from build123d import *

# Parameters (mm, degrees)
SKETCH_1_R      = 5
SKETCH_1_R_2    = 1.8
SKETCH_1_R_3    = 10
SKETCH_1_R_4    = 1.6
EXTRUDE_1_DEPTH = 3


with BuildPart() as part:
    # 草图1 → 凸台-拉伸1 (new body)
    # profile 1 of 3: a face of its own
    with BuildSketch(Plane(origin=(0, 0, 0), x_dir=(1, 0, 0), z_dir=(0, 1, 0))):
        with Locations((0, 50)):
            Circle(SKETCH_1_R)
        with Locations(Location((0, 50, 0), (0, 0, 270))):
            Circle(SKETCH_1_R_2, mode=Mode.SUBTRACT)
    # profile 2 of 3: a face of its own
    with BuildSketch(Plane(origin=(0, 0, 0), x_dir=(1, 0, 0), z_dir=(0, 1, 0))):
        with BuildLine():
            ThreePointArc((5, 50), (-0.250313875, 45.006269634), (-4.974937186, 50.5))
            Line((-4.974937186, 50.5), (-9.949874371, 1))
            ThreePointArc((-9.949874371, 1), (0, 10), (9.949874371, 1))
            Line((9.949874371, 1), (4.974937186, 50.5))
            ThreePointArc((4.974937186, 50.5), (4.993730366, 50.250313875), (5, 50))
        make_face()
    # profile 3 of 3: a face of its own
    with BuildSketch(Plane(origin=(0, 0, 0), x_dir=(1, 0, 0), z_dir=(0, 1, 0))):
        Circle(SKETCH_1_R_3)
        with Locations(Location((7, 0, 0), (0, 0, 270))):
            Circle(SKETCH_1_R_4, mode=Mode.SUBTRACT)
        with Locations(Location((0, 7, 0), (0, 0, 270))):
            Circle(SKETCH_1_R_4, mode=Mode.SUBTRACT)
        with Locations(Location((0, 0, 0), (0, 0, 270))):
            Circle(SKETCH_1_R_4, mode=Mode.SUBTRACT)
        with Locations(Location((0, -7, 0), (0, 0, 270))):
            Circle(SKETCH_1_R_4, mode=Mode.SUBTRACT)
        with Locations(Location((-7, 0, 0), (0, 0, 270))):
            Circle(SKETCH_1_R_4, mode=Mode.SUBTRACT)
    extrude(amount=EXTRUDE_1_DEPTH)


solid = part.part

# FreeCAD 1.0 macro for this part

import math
import FreeCAD as App
import Part
import Sketcher
Q = App.Units.Quantity

doc = App.newDocument("Part")
body = doc.addObject("PartDesign::Body", "Body")

# Sketch on XZ plane
sketch1 = body.newObject("Sketcher::SketchObject", "Sketch")
sketch1.AttachmentSupport = (doc.getObject("XZ_Plane"), [""])
sketch1.MapMode = "FlatFace"
sketch1.addGeometry([
    Part.ArcOfCircle(Part.Circle(App.Vector(0, -50, 0), App.Vector(0, 0, 1), 5), math.radians(-174.26083), math.radians(-5.73917)),  # 0
    Part.LineSegment(App.Vector(-4.974937, -50.5, 0), App.Vector(-9.949874, -1, 0)),  # 1
    Part.ArcOfCircle(Part.Circle(App.Vector(0, 0, 0), App.Vector(0, 0, 1), 10), math.radians(-5.73917), math.radians(185.73917)),  # 2
    Part.LineSegment(App.Vector(9.949874, -1, 0), App.Vector(4.974937, -50.5, 0)),  # 3
    Part.Circle(App.Vector(0, -50, 0), App.Vector(0, 0, 1), 1.8),  # 4
    Part.Circle(App.Vector(7, 0, 0), App.Vector(0, 0, 1), 1.6),  # 5
    Part.Circle(App.Vector(0, 7, 0), App.Vector(0, 0, 1), 1.6),  # 6
    Part.Circle(App.Vector(-7, 0, 0), App.Vector(0, 0, 1), 1.6),  # 7
    Part.Circle(App.Vector(0, 0, 0), App.Vector(0, 0, 1), 1.6),  # 8
    Part.Circle(App.Vector(0, -7, 0), App.Vector(0, 0, 1), 1.6),  # 9
], False)
sketch1.addConstraint([
    Sketcher.Constraint("Tangent", 0, 1, 1, 1),
    Sketcher.Constraint("Tangent", 1, 2, 2, 2),
    Sketcher.Constraint("Tangent", 2, 1, 3, 1),
    Sketcher.Constraint("Tangent", 3, 2, 0, 2),
    Sketcher.Constraint("Coincident", 2, 3, -1, 1),
    Sketcher.Constraint("Coincident", 8, 3, -1, 1),
    Sketcher.Constraint("Coincident", 4, 3, 0, 3),
    Sketcher.Constraint("Equal", 5, 6),
    Sketcher.Constraint("Equal", 6, 7),
    Sketcher.Constraint("Equal", 7, 8),
    Sketcher.Constraint("Equal", 8, 9),
    Sketcher.Constraint("Symmetric", 5, 3, 7, 3, -1, 1),
    Sketcher.Constraint("Symmetric", 6, 3, 9, 3, -1, 1),
    Sketcher.Constraint("PointOnObject", 0, 3, -2),
    Sketcher.Constraint("PointOnObject", 5, 3, -1),
    Sketcher.Constraint("PointOnObject", 6, 3, -2),
    Sketcher.Constraint("Radius", 0, Q("5 mm")),
    Sketcher.Constraint("Radius", 2, Q("10 mm")),
    Sketcher.Constraint("Diameter", 4, Q("3.6 mm")),
    Sketcher.Constraint("Diameter", 5, Q("3.2 mm")),
    Sketcher.Constraint("DistanceY", 0, 3, -1, 1, Q("50 mm")),
    Sketcher.Constraint("DistanceX", -1, 1, 5, 3, Q("7 mm")),
    Sketcher.Constraint("DistanceY", -1, 1, 6, 3, Q("7 mm")),
])
pad1 = body.newObject("PartDesign::Pad", "Pad")
pad1.Profile = sketch1
pad1.Length = 3
pad1.Reversed = True

doc.recompute()
